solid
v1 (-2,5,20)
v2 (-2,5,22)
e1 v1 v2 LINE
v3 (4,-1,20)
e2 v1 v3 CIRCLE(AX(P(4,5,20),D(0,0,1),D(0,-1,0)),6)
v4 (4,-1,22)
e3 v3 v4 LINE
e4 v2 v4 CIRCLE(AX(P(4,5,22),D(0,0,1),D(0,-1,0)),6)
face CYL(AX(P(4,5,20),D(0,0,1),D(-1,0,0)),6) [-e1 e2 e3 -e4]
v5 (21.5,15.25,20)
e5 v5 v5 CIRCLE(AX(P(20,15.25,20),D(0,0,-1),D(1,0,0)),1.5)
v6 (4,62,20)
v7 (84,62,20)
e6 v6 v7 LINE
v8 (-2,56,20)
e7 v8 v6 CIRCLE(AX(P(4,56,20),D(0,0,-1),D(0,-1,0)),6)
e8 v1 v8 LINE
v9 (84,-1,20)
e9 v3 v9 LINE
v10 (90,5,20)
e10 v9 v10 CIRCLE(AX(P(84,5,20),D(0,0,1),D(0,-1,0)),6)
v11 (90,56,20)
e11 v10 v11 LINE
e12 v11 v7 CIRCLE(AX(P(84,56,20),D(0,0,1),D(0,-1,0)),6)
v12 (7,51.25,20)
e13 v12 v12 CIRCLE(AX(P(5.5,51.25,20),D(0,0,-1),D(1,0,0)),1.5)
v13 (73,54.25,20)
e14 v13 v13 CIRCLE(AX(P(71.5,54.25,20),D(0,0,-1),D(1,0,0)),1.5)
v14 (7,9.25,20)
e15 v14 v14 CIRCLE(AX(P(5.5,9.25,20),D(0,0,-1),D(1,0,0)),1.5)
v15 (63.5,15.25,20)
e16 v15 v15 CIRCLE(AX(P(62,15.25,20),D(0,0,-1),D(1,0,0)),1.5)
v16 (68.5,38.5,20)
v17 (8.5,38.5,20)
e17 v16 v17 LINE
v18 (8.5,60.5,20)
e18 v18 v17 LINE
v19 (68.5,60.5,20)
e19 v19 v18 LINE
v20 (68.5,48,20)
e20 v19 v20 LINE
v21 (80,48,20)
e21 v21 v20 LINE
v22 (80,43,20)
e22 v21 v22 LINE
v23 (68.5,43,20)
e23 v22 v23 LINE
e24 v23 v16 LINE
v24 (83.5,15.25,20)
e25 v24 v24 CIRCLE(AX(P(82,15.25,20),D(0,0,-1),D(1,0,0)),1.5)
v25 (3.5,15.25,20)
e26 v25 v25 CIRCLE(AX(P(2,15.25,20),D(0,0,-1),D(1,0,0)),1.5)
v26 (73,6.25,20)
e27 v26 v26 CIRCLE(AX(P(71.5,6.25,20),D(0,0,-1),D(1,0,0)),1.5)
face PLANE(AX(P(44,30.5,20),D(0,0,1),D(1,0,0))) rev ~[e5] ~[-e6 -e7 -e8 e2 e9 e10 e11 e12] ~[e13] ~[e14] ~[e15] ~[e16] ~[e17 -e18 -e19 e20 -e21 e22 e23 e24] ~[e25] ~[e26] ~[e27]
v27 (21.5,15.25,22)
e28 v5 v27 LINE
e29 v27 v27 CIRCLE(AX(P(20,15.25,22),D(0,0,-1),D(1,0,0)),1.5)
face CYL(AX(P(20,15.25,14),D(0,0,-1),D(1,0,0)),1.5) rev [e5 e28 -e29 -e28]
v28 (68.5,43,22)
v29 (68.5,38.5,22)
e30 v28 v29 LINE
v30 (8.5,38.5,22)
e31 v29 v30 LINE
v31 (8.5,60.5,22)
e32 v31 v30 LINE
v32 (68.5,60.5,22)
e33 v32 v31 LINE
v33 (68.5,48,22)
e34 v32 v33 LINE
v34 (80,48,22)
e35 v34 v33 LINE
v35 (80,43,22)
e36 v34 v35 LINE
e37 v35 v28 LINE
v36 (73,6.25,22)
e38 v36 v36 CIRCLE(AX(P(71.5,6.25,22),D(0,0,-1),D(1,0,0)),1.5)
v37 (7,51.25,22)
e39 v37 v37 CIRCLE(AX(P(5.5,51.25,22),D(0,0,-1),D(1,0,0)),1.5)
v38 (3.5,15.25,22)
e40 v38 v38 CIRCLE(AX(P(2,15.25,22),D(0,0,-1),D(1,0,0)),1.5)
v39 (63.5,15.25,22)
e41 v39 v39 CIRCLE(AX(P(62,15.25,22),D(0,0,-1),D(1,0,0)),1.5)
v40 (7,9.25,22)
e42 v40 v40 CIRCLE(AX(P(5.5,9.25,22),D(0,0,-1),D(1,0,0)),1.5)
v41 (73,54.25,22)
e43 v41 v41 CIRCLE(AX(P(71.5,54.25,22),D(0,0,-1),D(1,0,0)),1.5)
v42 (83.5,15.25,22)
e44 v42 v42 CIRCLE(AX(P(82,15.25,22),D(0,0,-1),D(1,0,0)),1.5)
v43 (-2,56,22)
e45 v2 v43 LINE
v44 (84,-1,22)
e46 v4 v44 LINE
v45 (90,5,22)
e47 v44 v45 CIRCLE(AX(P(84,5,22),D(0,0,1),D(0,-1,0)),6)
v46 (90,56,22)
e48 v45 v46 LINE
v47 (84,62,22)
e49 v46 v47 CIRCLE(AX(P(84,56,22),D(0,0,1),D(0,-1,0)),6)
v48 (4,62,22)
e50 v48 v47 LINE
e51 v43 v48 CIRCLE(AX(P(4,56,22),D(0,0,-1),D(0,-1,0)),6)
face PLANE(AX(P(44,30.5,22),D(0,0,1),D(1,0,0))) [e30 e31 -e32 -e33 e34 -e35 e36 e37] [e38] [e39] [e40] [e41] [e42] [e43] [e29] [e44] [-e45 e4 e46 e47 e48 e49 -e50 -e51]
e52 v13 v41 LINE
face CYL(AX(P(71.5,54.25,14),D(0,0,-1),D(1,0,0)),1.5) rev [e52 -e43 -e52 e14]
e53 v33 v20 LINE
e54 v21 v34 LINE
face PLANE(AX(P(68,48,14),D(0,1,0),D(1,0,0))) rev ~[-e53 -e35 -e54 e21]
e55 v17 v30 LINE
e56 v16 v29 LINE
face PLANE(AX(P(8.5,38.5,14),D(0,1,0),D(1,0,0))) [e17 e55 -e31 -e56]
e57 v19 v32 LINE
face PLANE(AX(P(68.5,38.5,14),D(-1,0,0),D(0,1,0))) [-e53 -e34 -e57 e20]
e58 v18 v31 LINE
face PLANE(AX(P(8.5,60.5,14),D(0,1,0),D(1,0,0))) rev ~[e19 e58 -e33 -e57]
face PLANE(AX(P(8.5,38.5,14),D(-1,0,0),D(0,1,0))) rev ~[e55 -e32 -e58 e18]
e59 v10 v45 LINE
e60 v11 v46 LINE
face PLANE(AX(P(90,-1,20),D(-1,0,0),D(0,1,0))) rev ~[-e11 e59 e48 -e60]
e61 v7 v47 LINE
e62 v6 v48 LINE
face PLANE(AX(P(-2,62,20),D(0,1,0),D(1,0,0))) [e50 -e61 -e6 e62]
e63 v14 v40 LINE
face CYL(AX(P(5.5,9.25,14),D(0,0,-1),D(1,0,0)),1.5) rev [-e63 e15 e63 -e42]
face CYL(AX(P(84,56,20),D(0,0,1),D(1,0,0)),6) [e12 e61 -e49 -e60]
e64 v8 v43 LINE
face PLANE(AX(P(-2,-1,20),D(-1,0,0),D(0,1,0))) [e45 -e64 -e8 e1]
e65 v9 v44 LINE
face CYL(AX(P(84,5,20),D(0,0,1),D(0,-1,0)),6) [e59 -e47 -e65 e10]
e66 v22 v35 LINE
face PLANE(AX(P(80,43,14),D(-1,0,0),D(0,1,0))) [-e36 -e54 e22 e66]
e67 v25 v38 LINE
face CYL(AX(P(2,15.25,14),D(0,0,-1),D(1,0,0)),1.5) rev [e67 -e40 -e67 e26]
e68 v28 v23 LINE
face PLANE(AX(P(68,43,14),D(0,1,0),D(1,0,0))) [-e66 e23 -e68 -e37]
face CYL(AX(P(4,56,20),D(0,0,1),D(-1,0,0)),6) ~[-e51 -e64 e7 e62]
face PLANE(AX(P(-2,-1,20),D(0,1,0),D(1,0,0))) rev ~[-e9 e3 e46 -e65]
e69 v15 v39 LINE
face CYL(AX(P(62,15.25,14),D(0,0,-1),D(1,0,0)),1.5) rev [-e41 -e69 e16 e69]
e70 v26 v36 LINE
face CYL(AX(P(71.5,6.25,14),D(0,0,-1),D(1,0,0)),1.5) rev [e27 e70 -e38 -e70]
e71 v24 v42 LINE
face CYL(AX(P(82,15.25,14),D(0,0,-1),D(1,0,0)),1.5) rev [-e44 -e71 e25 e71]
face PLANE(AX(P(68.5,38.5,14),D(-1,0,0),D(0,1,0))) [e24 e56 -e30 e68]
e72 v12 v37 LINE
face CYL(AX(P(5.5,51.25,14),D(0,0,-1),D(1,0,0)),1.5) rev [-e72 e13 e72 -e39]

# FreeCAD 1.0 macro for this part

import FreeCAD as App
import Part
import Sketcher

V = App.Vector
Q = App.Units.Quantity


def edges_at(feature, points):
    """Names of the edges that pass closest to the given points."""
    edges = feature.Shape.Edges
    near = lambda p: min(range(len(edges)), key=lambda i: edges[i].distToShape(Part.Vertex(*p))[0])
    return sorted({f"Edge{near(p) + 1}" for p in points})


def add_polygon(sketch, points):
    """Adds a closed chain of lines whose ends are joined by coincident constraints."""
    first, n = sketch.GeometryCount, len(points)
    for a, b in zip(points, points[1:] + points[:1]):
        sketch.addGeometry(Part.LineSegment(App.Vector(*a, 0), App.Vector(*b, 0)), False)
    for i in range(n):
        sketch.addConstraint(Sketcher.Constraint("Coincident", first + i, 2, first + (i + 1) % n, 1))

doc = App.newDocument("Part")
body = doc.addObject("PartDesign::Body", "Body")

sketch1 = body.newObject("Sketcher::SketchObject", "Sketch")
sketch1.AttachmentSupport = (doc.getObject("XY_Plane"), [""])
sketch1.MapMode = "FlatFace"
sketch1.AttachmentOffset = App.Placement(V(0, 0, 20), App.Rotation())
add_polygon(sketch1, [(68, 48), (68, 43), (80, 43), (80, 48)])
sketch1.addConstraint(Sketcher.Constraint("Vertical", 0))
sketch1.addConstraint(Sketcher.Constraint("Horizontal", 1))
sketch1.addConstraint(Sketcher.Constraint("Vertical", 2))
sketch1.addConstraint(Sketcher.Constraint("Horizontal", 3))
sketch1.addConstraint(Sketcher.Constraint("DistanceX", 1, 1, 1, 2, Q("12 mm")))
sketch1.addConstraint(Sketcher.Constraint("DistanceY", 0, 2, 0, 1, Q("5 mm")))
sketch1.addConstraint(Sketcher.Constraint("DistanceX", -1, 1, 0, 2, Q("68 mm")))
sketch1.addConstraint(Sketcher.Constraint("DistanceY", -1, 1, 0, 2, Q("43 mm")))
pad1 = body.newObject("PartDesign::Pad", "Pad")
pad1.Profile = sketch1
pad1.Length = 10
body2 = doc.addObject("PartDesign::Body", "Body001")

sketch2 = body2.newObject("Sketcher::SketchObject", "Sketch001")
sketch2.AttachmentSupport = (doc.getObject("XY_Plane001"), [""])
sketch2.MapMode = "FlatFace"
sketch2.AttachmentOffset = App.Placement(V(0, 0, 20), App.Rotation())
add_polygon(sketch2, [(8, 60), (8, 38), (68, 38), (68, 60)])
sketch2.addConstraint(Sketcher.Constraint("Vertical", 0))
sketch2.addConstraint(Sketcher.Constraint("Horizontal", 1))
sketch2.addConstraint(Sketcher.Constraint("Vertical", 2))
sketch2.addConstraint(Sketcher.Constraint("Horizontal", 3))
sketch2.addConstraint(Sketcher.Constraint("DistanceX", 1, 1, 1, 2, Q("60 mm")))
sketch2.addConstraint(Sketcher.Constraint("DistanceY", 0, 2, 0, 1, Q("22 mm")))
sketch2.addConstraint(Sketcher.Constraint("DistanceX", -1, 1, 0, 2, Q("8.5 mm")))
sketch2.addConstraint(Sketcher.Constraint("DistanceY", -1, 1, 0, 2, Q("38.5 mm")))
pad2 = body2.newObject("PartDesign::Pad", "Pad001")
pad2.Profile = sketch2
pad2.Length = 10
body3 = doc.addObject("PartDesign::Body", "Body002")

sketch3 = body3.newObject("Sketcher::SketchObject", "Sketch002")
sketch3.AttachmentSupport = (doc.getObject("XY_Plane002"), [""])
sketch3.MapMode = "FlatFace"
sketch3.AttachmentOffset = App.Placement(V(0, 0, 20), App.Rotation())
sketch3.addGeometry(Part.Circle(V(82, 15.2, 0), V(0, 0, 1), 1.5), False)
sketch3.addConstraint(Sketcher.Constraint("Diameter", 0, Q("3 mm")))
sketch3.addConstraint(Sketcher.Constraint("DistanceX", -1, 1, 0, 3, Q("82 mm")))
sketch3.addConstraint(Sketcher.Constraint("DistanceY", -1, 1, 0, 3, Q("15.25 mm")))
pad3 = body3.newObject("PartDesign::Pad", "Pad002")
pad3.Profile = sketch3
pad3.Length = 20
body4 = doc.addObject("PartDesign::Body", "Body003")

sketch4 = body4.newObject("Sketcher::SketchObject", "Sketch003")
sketch4.AttachmentSupport = (doc.getObject("XY_Plane003"), [""])
sketch4.MapMode = "FlatFace"
sketch4.AttachmentOffset = App.Placement(V(0, 0, 20), App.Rotation())
sketch4.addGeometry(Part.Circle(V(20, 15.2, 0), V(0, 0, 1), 1.5), False)
sketch4.addConstraint(Sketcher.Constraint("Diameter", 0, Q("3 mm")))
sketch4.addConstraint(Sketcher.Constraint("DistanceX", -1, 1, 0, 3, Q("20 mm")))
sketch4.addConstraint(Sketcher.Constraint("DistanceY", -1, 1, 0, 3, Q("15.25 mm")))
pad4 = body4.newObject("PartDesign::Pad", "Pad003")
pad4.Profile = sketch4
pad4.Length = 20
body5 = doc.addObject("PartDesign::Body", "Body004")

sketch5 = body5.newObject("Sketcher::SketchObject", "Sketch004")
sketch5.AttachmentSupport = (doc.getObject("XY_Plane004"), [""])
sketch5.MapMode = "FlatFace"
sketch5.AttachmentOffset = App.Placement(V(0, 0, 20), App.Rotation())
sketch5.addGeometry(Part.Circle(V(2, 15.2, 0), V(0, 0, 1), 1.5), False)
sketch5.addConstraint(Sketcher.Constraint("Diameter", 0, Q("3 mm")))
sketch5.addConstraint(Sketcher.Constraint("DistanceX", -1, 1, 0, 3, Q("2 mm")))
sketch5.addConstraint(Sketcher.Constraint("DistanceY", -1, 1, 0, 3, Q("15.25 mm")))
pad5 = body5.newObject("PartDesign::Pad", "Pad004")
pad5.Profile = sketch5
pad5.Length = 20
body6 = doc.addObject("PartDesign::Body", "Body005")
body6.AllowCompound = True

sketch6 = body6.newObject("Sketcher::SketchObject", "Sketch005")
sketch6.AttachmentSupport = (doc.getObject("XY_Plane005"), [""])
sketch6.MapMode = "FlatFace"
sketch6.AttachmentOffset = App.Placement(V(0, 0, 20), App.Rotation())
sketch6.addGeometry(Part.Circle(V(62, 15.2, 0), V(0, 0, 1), 1.5), False)
sketch6.addConstraint(Sketcher.Constraint("Diameter", 0, Q("3 mm")))
sketch6.addConstraint(Sketcher.Constraint("DistanceX", -1, 1, 0, 3, Q("62 mm")))
sketch6.addConstraint(Sketcher.Constraint("DistanceY", -1, 1, 0, 3, Q("15.25 mm")))
pad6 = body6.newObject("PartDesign::Pad", "Pad005")
pad6.Profile = sketch6
pad6.Length = 20
doc.recompute()

boolean = body6.newObject("PartDesign::Boolean", "Boolean")
boolean.Type = "Fuse"
boolean.addObjects([body3])
doc.recompute()

boolean2 = body6.newObject("PartDesign::Boolean", "Boolean001")
boolean2.Type = "Fuse"
boolean2.addObjects([body4])
doc.recompute()

boolean3 = body6.newObject("PartDesign::Boolean", "Boolean002")
boolean3.Type = "Fuse"
boolean3.addObjects([body5])
body7 = doc.addObject("PartDesign::Body", "Body006")

sketch7 = body7.newObject("Sketcher::SketchObject", "Sketch006")
sketch7.AttachmentSupport = (doc.getObject("XY_Plane006"), [""])
sketch7.MapMode = "FlatFace"
sketch7.AttachmentOffset = App.Placement(V(0, 0, 20), App.Rotation())
sketch7.addGeometry(Part.Circle(V(5.5, 9.2, 0), V(0, 0, 1), 1.5), False)
sketch7.addConstraint(Sketcher.Constraint("Diameter", 0, Q("3 mm")))
sketch7.addConstraint(Sketcher.Constraint("DistanceX", -1, 1, 0, 3, Q("5.5 mm")))
sketch7.addConstraint(Sketcher.Constraint("DistanceY", -1, 1, 0, 3, Q("9.25 mm")))
pad7 = body7.newObject("PartDesign::Pad", "Pad006")
pad7.Profile = sketch7
pad7.Length = 20
body8 = doc.addObject("PartDesign::Body", "Body007")

sketch8 = body8.newObject("Sketcher::SketchObject", "Sketch007")
sketch8.AttachmentSupport = (doc.getObject("XY_Plane007"), [""])
sketch8.MapMode = "FlatFace"
sketch8.AttachmentOffset = App.Placement(V(0, 0, 20), App.Rotation())
sketch8.addGeometry(Part.Circle(V(5.5, 51.2, 0), V(0, 0, 1), 1.5), False)
sketch8.addConstraint(Sketcher.Constraint("Diameter", 0, Q("3 mm")))
sketch8.addConstraint(Sketcher.Constraint("DistanceX", -1, 1, 0, 3, Q("5.5 mm")))
sketch8.addConstraint(Sketcher.Constraint("DistanceY", -1, 1, 0, 3, Q("51.25 mm")))
pad8 = body8.newObject("PartDesign::Pad", "Pad007")
pad8.Profile = sketch8
pad8.Length = 20
body9 = doc.addObject("PartDesign::Body", "Body008")

sketch9 = body9.newObject("Sketcher::SketchObject", "Sketch008")
sketch9.AttachmentSupport = (doc.getObject("XY_Plane008"), [""])
sketch9.MapMode = "FlatFace"
sketch9.AttachmentOffset = App.Placement(V(0, 0, 20), App.Rotation())
sketch9.addGeometry(Part.Circle(V(71.5, 54.2, 0), V(0, 0, 1), 1.5), False)
sketch9.addConstraint(Sketcher.Constraint("Diameter", 0, Q("3 mm")))
sketch9.addConstraint(Sketcher.Constraint("DistanceX", -1, 1, 0, 3, Q("71.5 mm")))
sketch9.addConstraint(Sketcher.Constraint("DistanceY", -1, 1, 0, 3, Q("54.25 mm")))
pad9 = body9.newObject("PartDesign::Pad", "Pad008")
pad9.Profile = sketch9
pad9.Length = 20
body10 = doc.addObject("PartDesign::Body", "Body009")
body10.AllowCompound = True

sketch10 = body10.newObject("Sketcher::SketchObject", "Sketch009")
sketch10.AttachmentSupport = (doc.getObject("XY_Plane009"), [""])
sketch10.MapMode = "FlatFace"
sketch10.AttachmentOffset = App.Placement(V(0, 0, 20), App.Rotation())
sketch10.addGeometry(Part.Circle(V(71.5, 6.2, 0), V(0, 0, 1), 1.5), False)
sketch10.addConstraint(Sketcher.Constraint("Diameter", 0, Q("3 mm")))
sketch10.addConstraint(Sketcher.Constraint("DistanceX", -1, 1, 0, 3, Q("71.5 mm")))
sketch10.addConstraint(Sketcher.Constraint("DistanceY", -1, 1, 0, 3, Q("6.25 mm")))
pad10 = body10.newObject("PartDesign::Pad", "Pad009")
pad10.Profile = sketch10
pad10.Length = 20
doc.recompute()

boolean4 = body10.newObject("PartDesign::Boolean", "Boolean003")
boolean4.Type = "Fuse"
boolean4.addObjects([body7])
doc.recompute()

boolean5 = body10.newObject("PartDesign::Boolean", "Boolean004")
boolean5.Type = "Fuse"
boolean5.addObjects([body8])
doc.recompute()

boolean6 = body10.newObject("PartDesign::Boolean", "Boolean005")
boolean6.Type = "Fuse"
boolean6.addObjects([body9])
body11 = doc.addObject("PartDesign::Body", "Body010")

sketch11 = body11.newObject("Sketcher::SketchObject", "Sketch010")
sketch11.AttachmentSupport = (doc.getObject("XY_Plane010"), [""])
sketch11.MapMode = "FlatFace"
add_polygon(sketch11, [(-2, 62), (-2, -1), (90, -1), (90, 62)])
sketch11.addConstraint(Sketcher.Constraint("Vertical", 0))
sketch11.addConstraint(Sketcher.Constraint("Horizontal", 1))
sketch11.addConstraint(Sketcher.Constraint("Vertical", 2))
sketch11.addConstraint(Sketcher.Constraint("Horizontal", 3))
sketch11.addConstraint(Sketcher.Constraint("DistanceX", 1, 1, 1, 2, Q("92 mm")))
sketch11.addConstraint(Sketcher.Constraint("DistanceY", 0, 2, 0, 1, Q("63 mm")))
sketch11.addConstraint(Sketcher.Constraint("DistanceX", 0, 2, -1, 1, Q("2 mm")))
sketch11.addConstraint(Sketcher.Constraint("DistanceY", 0, 2, -1, 1, Q("1 mm")))
pad11 = body11.newObject("PartDesign::Pad", "Pad010")
pad11.Profile = sketch11
pad11.Length = 2
doc.recompute()

fillet = body11.newObject("PartDesign::Fillet", "Fillet")
fillet.Base = (pad11, edges_at(pad11, [
    (-2, -1, 1),
    (-2, 62, 1),
    (90, -1, 1),
    (90, 62, 1),
]))
fillet.Radius = 6
body12 = doc.addObject("PartDesign::Body", "Body011")
doc.recompute()

body11.Placement = App.Placement(V(0, 0, 26), App.Rotation(V(0, 0, 1), 0))
boolean7 = body12.newObject("PartDesign::Boolean", "Boolean006")
boolean7.Type = "Fuse"
boolean7.addObjects([body11])
doc.recompute()

boolean8 = body12.newObject("PartDesign::Boolean", "Boolean007")
boolean8.Type = "Cut"
boolean8.addObjects([body10])
doc.recompute()

boolean9 = body12.newObject("PartDesign::Boolean", "Boolean008")
boolean9.Type = "Cut"
boolean9.addObjects([body6])
doc.recompute()

boolean10 = body12.newObject("PartDesign::Boolean", "Boolean009")
boolean10.Type = "Cut"
boolean10.addObjects([body2])
doc.recompute()

boolean11 = body12.newObject("PartDesign::Boolean", "Boolean010")
boolean11.Type = "Cut"
boolean11.addObjects([body])
body13 = doc.addObject("PartDesign::Body", "Body012")
doc.recompute()

body12.Placement = App.Placement(V(0, 0, -6), App.Rotation(V(0, 0, 1), 0))
boolean12 = body13.newObject("PartDesign::Boolean", "Boolean011")
boolean12.Type = "Fuse"
boolean12.addObjects([body12])

doc.recompute()
